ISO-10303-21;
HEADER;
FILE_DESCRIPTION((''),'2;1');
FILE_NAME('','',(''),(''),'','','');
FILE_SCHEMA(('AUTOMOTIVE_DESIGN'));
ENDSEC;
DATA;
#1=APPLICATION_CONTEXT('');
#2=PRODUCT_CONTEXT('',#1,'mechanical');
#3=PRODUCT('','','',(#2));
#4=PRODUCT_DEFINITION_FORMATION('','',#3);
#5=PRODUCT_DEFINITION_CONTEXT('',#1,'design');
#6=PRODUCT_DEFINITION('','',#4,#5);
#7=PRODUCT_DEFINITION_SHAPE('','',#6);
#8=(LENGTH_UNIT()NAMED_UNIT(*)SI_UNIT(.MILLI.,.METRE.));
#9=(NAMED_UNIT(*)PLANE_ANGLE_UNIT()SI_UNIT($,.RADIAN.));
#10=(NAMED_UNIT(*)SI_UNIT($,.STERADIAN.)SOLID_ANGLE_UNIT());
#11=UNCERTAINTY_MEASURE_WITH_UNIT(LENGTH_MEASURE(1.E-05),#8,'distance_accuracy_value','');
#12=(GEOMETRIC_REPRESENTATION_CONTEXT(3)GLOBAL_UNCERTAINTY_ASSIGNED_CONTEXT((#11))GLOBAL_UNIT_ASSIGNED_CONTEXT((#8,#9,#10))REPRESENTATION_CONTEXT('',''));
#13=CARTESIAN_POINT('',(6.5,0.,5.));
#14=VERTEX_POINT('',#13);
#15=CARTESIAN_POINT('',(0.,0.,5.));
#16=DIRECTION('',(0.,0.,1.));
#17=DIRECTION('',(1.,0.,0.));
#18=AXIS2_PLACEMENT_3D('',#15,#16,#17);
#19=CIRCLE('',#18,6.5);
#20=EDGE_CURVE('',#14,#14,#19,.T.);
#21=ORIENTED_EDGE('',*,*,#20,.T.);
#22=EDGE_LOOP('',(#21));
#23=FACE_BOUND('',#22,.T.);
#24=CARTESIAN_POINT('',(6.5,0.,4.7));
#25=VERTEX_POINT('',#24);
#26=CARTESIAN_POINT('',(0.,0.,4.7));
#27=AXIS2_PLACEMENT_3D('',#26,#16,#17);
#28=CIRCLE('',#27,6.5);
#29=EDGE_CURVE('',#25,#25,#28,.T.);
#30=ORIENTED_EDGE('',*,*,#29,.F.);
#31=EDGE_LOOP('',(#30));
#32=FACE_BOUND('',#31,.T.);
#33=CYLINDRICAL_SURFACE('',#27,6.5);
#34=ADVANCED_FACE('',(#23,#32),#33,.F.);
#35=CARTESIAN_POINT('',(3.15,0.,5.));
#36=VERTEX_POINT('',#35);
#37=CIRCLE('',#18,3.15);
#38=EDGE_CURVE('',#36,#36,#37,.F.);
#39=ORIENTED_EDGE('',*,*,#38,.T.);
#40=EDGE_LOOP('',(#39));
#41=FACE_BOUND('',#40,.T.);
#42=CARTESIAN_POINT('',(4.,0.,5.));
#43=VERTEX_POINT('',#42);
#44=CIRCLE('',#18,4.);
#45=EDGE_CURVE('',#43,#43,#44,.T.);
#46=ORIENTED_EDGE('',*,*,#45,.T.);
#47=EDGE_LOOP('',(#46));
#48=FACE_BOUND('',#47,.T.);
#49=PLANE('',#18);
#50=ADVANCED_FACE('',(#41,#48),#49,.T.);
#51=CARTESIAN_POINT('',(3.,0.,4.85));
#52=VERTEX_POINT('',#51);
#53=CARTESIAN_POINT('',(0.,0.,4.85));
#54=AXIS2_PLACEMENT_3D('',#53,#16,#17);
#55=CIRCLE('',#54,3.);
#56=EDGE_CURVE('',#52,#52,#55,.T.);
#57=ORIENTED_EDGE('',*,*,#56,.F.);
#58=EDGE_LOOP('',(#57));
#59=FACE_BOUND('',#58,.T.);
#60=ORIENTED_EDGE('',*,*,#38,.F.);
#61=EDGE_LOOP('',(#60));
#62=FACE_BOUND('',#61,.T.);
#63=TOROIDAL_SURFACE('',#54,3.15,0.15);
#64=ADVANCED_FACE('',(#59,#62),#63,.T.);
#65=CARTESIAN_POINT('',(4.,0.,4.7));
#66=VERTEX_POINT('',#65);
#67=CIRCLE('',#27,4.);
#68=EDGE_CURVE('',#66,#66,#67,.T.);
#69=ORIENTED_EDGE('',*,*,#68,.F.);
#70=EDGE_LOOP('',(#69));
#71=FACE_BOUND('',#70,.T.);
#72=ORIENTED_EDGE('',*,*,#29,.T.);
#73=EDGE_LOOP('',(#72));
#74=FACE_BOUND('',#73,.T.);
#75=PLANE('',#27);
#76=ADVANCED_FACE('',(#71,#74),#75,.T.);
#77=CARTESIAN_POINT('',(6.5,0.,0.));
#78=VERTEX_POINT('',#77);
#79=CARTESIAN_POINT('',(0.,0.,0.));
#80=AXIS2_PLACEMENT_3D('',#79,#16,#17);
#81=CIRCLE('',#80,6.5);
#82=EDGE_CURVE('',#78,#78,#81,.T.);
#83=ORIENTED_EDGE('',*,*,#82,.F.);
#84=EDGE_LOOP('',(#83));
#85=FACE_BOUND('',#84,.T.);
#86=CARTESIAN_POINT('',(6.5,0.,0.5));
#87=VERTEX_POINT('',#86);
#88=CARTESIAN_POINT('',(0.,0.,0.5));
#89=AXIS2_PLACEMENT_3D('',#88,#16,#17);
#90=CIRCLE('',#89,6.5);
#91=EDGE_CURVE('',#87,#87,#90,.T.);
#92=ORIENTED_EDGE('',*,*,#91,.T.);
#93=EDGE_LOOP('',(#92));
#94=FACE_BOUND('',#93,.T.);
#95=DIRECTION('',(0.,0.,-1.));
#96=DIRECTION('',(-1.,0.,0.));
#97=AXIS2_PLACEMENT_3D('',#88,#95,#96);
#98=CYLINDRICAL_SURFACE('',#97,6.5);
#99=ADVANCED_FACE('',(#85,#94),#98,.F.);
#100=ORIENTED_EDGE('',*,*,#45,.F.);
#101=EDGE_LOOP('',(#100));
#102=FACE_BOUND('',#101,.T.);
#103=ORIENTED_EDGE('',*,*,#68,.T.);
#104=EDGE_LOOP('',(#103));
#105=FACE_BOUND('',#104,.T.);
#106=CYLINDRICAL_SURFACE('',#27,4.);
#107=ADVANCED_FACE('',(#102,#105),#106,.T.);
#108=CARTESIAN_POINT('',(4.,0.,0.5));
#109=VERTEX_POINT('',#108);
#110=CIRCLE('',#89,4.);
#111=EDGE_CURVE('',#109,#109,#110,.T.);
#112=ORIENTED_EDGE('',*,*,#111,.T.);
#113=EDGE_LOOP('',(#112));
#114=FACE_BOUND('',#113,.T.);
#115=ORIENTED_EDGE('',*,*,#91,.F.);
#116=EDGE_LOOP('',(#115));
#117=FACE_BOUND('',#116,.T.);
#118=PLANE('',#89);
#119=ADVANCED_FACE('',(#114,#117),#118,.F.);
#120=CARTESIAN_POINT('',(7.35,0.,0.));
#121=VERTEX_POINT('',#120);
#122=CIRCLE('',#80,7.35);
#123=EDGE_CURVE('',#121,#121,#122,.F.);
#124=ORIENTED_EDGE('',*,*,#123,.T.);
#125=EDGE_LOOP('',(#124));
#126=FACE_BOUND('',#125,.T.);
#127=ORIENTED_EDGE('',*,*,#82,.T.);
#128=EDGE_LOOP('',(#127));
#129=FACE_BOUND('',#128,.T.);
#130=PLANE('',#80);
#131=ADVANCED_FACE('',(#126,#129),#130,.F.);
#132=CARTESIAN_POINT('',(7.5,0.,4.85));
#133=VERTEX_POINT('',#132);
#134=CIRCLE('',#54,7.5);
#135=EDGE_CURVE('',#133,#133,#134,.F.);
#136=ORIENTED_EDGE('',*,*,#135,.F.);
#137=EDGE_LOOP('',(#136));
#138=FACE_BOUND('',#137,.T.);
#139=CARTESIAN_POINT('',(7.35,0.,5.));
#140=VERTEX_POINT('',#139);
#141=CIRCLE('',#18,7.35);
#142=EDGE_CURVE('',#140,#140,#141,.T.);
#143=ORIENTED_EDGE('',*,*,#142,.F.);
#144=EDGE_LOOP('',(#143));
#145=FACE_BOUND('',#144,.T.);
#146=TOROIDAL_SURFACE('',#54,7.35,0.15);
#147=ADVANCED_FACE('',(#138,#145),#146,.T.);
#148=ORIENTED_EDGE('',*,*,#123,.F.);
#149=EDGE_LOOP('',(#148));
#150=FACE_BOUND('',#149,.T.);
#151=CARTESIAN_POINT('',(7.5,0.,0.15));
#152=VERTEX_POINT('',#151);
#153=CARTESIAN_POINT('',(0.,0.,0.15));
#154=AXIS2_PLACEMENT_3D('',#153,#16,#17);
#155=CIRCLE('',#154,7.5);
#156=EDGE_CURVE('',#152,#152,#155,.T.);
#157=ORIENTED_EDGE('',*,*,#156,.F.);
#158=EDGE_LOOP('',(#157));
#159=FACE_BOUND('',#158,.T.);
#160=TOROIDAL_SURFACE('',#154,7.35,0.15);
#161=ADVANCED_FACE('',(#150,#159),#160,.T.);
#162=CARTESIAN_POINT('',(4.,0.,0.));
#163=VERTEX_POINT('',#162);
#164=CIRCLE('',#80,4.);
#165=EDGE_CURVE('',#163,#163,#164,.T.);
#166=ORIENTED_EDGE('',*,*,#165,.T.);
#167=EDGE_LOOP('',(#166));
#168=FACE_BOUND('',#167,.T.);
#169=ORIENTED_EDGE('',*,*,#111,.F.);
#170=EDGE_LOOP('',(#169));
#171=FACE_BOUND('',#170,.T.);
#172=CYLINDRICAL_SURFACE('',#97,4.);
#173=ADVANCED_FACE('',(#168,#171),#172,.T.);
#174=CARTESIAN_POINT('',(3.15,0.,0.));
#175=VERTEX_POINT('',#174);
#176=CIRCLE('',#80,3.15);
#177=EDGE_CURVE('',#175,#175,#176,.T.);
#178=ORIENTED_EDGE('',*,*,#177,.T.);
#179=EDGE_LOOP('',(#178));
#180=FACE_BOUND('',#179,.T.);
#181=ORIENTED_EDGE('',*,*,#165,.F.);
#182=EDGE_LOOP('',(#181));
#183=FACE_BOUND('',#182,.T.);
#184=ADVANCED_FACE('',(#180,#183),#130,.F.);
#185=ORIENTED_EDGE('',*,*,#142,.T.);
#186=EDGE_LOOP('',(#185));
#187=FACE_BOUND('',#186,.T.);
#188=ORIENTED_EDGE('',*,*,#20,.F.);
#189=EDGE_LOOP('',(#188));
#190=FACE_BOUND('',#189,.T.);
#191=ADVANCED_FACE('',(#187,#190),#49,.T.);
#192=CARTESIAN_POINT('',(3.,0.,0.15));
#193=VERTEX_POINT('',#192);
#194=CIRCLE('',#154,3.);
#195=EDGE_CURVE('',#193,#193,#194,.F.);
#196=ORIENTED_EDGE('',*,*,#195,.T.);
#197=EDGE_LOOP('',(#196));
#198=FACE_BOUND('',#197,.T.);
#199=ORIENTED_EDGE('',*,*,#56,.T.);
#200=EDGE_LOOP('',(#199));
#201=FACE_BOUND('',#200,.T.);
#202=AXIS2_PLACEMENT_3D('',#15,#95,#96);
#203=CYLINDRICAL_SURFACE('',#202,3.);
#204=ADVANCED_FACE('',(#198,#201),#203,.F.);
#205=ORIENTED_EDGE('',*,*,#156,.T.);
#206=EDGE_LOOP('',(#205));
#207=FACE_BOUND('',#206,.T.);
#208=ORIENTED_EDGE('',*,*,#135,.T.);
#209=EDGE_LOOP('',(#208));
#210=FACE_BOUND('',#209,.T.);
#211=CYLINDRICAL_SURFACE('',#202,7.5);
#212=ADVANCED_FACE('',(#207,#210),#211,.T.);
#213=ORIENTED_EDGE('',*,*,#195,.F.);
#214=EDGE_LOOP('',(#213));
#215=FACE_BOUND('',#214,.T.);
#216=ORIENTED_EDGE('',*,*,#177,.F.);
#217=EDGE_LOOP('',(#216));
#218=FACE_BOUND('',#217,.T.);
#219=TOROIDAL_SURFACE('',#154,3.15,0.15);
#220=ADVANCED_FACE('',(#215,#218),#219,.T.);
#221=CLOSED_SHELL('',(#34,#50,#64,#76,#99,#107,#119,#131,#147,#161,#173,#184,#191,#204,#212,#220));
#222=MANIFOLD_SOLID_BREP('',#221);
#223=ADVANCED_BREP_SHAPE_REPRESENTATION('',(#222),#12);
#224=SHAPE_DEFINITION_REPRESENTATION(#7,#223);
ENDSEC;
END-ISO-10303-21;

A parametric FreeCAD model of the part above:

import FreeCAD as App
import Part
import Sketcher

V = App.Vector


def edges_at(feature, points):
    """Names of the edges that pass closest to the given points."""
    edges = feature.Shape.Edges
    near = lambda p: min(range(len(edges)), key=lambda i: edges[i].distToShape(Part.Vertex(*p))[0])
    return sorted({f"Edge{near(p) + 1}" for p in points})

doc = App.newDocument("Part")
params = doc.addObject("Spreadsheet::Sheet", "Params")
for row, (alias, value) in enumerate([
    ("sketch1_diameter", "15 mm"),
    ("sketch1_diameter2", "6 mm"),
    ("pad1_length", "5 mm"),
    ("sketch2_diameter", "13 mm"),
    ("sketch2_diameter2", "8 mm"),
    ("pocket1_length", "0.3 mm"),
    ("sketch3_diameter", "13 mm"),
    ("sketch3_diameter2", "8 mm"),
    ("pocket2_length", "0.5 mm"),
    ("fillet_radius", "0.15 mm"),
], start=1):
    params.set(f"A{row}", alias)
    params.set(f"B{row}", "=" + value)
    params.setAlias(f"B{row}", alias)

body = doc.addObject("PartDesign::Body", "Body")

sketch1 = body.newObject("Sketcher::SketchObject", "Sketch")
sketch1.AttachmentSupport = (doc.getObject("XY_Plane"), [""])
sketch1.MapMode = "FlatFace"
sketch1.addGeometry([
    Part.Circle(V(0, 0, 0), V(0, 0, 1), 7.5),
    Part.Circle(V(0, 0, 0), V(0, 0, 1), 3),
], False)
sketch1.addConstraint([
    Sketcher.Constraint("Coincident", 0, 3, -1, 1),
    Sketcher.Constraint("Coincident", 1, 3, -1, 1),
    Sketcher.Constraint("Diameter", 0, 15.0),
    Sketcher.Constraint("Diameter", 1, 6.0),
])
sketch1.setExpression("Constraints[2]", "Params.sketch1_diameter")
sketch1.setExpression("Constraints[3]", "Params.sketch1_diameter2")
pad1 = body.newObject("PartDesign::Pad", "Pad")
pad1.Profile = sketch1
pad1.setExpression("Length", "Params.pad1_length")

sketch2 = body.newObject("Sketcher::SketchObject", "Sketch001")
sketch2.AttachmentSupport = (doc.getObject("XY_Plane"), [""])
sketch2.MapMode = "FlatFace"
sketch2.AttachmentOffset = App.Placement(V(0, 0, 5), App.Rotation())
sketch2.addGeometry([
    Part.Circle(V(0, 0, 0), V(0, 0, 1), 6.5),
    Part.Circle(V(0, 0, 0), V(0, 0, 1), 4),
], False)
sketch2.addConstraint([
    Sketcher.Constraint("Coincident", 0, 3, -1, 1),
    Sketcher.Constraint("Coincident", 1, 3, -1, 1),
    Sketcher.Constraint("Diameter", 0, 13.0),
    Sketcher.Constraint("Diameter", 1, 8.0),
])
sketch2.setExpression("Constraints[2]", "Params.sketch2_diameter")
sketch2.setExpression("Constraints[3]", "Params.sketch2_diameter2")
pocket1 = body.newObject("PartDesign::Pocket", "Pocket")
pocket1.Profile = sketch2
pocket1.setExpression("Length", "Params.pocket1_length")

sketch3 = body.newObject("Sketcher::SketchObject", "Sketch002")
sketch3.AttachmentSupport = (doc.getObject("XY_Plane"), [""])
sketch3.MapMode = "FlatFace"
sketch3.AttachmentOffset = App.Placement(V(0, 0, 0.5), App.Rotation())
sketch3.addGeometry([
    Part.Circle(V(0, 0, 0), V(0, 0, 1), 6.5),
    Part.Circle(V(0, 0, 0), V(0, 0, 1), 4),
], False)
sketch3.addConstraint([
    Sketcher.Constraint("Coincident", 0, 3, -1, 1),
    Sketcher.Constraint("Coincident", 1, 3, -1, 1),
    Sketcher.Constraint("Diameter", 0, 13.0),
    Sketcher.Constraint("Diameter", 1, 8.0),
])
sketch3.setExpression("Constraints[2]", "Params.sketch3_diameter")
sketch3.setExpression("Constraints[3]", "Params.sketch3_diameter2")
pocket2 = body.newObject("PartDesign::Pocket", "Pocket001")
pocket2.Profile = sketch3
pocket2.setExpression("Length", "Params.pocket2_length")
doc.recompute()

fillet = body.newObject("PartDesign::Fillet", "Fillet")
fillet.Base = (pocket2, edges_at(pocket2, [
    (-7.5, 0, 0),
    (-7.5, 0, 5),
    (-3, 0, 0),
    (-3, 0, 5),
]))
fillet.setExpression("Radius", "Params.fillet_radius")

doc.recompute()
